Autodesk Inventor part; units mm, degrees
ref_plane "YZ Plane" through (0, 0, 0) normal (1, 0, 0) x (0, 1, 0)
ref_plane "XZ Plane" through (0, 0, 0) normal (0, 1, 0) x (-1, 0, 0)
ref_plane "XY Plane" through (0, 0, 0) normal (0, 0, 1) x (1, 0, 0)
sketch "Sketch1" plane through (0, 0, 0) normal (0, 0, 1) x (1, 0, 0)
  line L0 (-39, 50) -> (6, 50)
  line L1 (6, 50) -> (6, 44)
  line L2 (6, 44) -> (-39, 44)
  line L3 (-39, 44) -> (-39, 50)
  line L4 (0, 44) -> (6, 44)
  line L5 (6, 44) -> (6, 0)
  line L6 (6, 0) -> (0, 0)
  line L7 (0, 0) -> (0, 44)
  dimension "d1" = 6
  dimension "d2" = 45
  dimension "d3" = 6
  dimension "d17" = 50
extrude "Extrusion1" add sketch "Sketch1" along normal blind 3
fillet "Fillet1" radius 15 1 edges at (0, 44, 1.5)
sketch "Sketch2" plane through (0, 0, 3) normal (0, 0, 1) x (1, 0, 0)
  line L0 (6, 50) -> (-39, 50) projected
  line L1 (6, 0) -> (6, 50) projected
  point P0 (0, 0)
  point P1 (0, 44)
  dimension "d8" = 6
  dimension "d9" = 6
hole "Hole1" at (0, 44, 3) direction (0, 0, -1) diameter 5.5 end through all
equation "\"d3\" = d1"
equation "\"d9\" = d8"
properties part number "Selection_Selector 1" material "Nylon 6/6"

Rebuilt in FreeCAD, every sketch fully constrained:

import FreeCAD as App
import Part
import Sketcher


def edges_at(feature, points):
    """Names of the edges that pass closest to the given points."""
    edges = feature.Shape.Edges
    near = lambda p: min(range(len(edges)), key=lambda i: edges[i].distToShape(Part.Vertex(*p))[0])
    return sorted({f"Edge{near(p) + 1}" for p in points})


def add_polygon(sketch, points):
    """Adds a closed chain of lines whose ends are joined by coincident constraints."""
    first, n = sketch.GeometryCount, len(points)
    for a, b in zip(points, points[1:] + points[:1]):
        sketch.addGeometry(Part.LineSegment(App.Vector(*a, 0), App.Vector(*b, 0)), False)
    for i in range(n):
        sketch.addConstraint(Sketcher.Constraint("Coincident", first + i, 2, first + (i + 1) % n, 1))

doc = App.newDocument("Part")
params = doc.addObject("Spreadsheet::Sheet", "Params")
for row, (alias, value) in enumerate([
    ("sketch1_width", "45 mm"),
    ("sketch1_width2", "6 mm"),
    ("sketch1_height", "50 mm"),
    ("pad1_length", "3 mm"),
    ("fillet_radius", "15 mm"),
    ("sketch2_diameter", "5.5 mm"),
    ("hole_diameter", "5.5 mm"),
], start=1):
    params.set(f"A{row}", alias)
    params.set(f"B{row}", "=" + value)
    params.setAlias(f"B{row}", alias)

body = doc.addObject("PartDesign::Body", "Body")

# Sketch on XY plane
sketch1 = body.newObject("Sketcher::SketchObject", "Sketch")
sketch1.AttachmentSupport = (doc.getObject("XY_Plane"), [""])
sketch1.MapMode = "FlatFace"
add_polygon(sketch1, [(6, 50), (-39, 50), (-39, 44), (0, 44), (0, 0), (6, 0)])  # lines 0-5
sketch1.addConstraint(Sketcher.Constraint("Horizontal", 0))
sketch1.addConstraint(Sketcher.Constraint("Vertical", 1))
sketch1.addConstraint(Sketcher.Constraint("Horizontal", 2))
sketch1.addConstraint(Sketcher.Constraint("Vertical", 3))
sketch1.addConstraint(Sketcher.Constraint("Horizontal", 4))
sketch1.addConstraint(Sketcher.Constraint("Vertical", 5))
sketch1.addConstraint(Sketcher.Constraint("Coincident", 3, 2, -1, 1))
sketch1.addConstraint(Sketcher.Constraint("Equal", 4, 1))
sketch1.addConstraint(Sketcher.Constraint("DistanceX", 0, 2, 0, 1, 45.0))
sketch1.addConstraint(Sketcher.Constraint("DistanceX", 4, 1, 4, 2, 6.0))
sketch1.addConstraint(Sketcher.Constraint("DistanceY", 5, 1, 5, 2, 50.0))
sketch1.setExpression("Constraints[14]", "Params.sketch1_width")
sketch1.setExpression("Constraints[15]", "Params.sketch1_width2")
sketch1.setExpression("Constraints[16]", "Params.sketch1_height")
pad1 = body.newObject("PartDesign::Pad", "Pad")
pad1.Profile = sketch1
pad1.setExpression("Length", "Params.pad1_length")
doc.recompute()

fillet = body.newObject("PartDesign::Fillet", "Fillet")
fillet.Base = (pad1, edges_at(pad1, [(0, 44, 1.5)]))
fillet.setExpression("Radius", "Params.fillet_radius")

# Sketch on XY plane
sketch2 = body.newObject("Sketcher::SketchObject", "Sketch001")
sketch2.AttachmentSupport = (doc.getObject("XY_Plane"), [""])
sketch2.MapMode = "FlatFace"
sketch2.AttachmentOffset = App.Placement(App.Vector(0, 0, 3), App.Rotation())
sketch2.addGeometry(Part.Circle(App.Vector(0, 44, 0), App.Vector(0, 0, 1), 2.8), False)
sketch2.addConstraint(Sketcher.Constraint("PointOnObject", 0, 3, -2))
sketch2.addConstraint(Sketcher.Constraint("Diameter", 0, 5.5))
sketch2.addConstraint(Sketcher.Constraint("DistanceY", -1, 1, 0, 3, 44.0))
sketch2.setExpression("Constraints[1]", "Params.sketch2_diameter")
doc.recompute()
hole = body.newObject("PartDesign::Hole", "Hole")
hole.Profile = sketch2
hole.ThreadType = "None"
hole.setExpression("Diameter", "Params.hole_diameter")
hole.DepthType = "ThroughAll"

doc.recompute()
